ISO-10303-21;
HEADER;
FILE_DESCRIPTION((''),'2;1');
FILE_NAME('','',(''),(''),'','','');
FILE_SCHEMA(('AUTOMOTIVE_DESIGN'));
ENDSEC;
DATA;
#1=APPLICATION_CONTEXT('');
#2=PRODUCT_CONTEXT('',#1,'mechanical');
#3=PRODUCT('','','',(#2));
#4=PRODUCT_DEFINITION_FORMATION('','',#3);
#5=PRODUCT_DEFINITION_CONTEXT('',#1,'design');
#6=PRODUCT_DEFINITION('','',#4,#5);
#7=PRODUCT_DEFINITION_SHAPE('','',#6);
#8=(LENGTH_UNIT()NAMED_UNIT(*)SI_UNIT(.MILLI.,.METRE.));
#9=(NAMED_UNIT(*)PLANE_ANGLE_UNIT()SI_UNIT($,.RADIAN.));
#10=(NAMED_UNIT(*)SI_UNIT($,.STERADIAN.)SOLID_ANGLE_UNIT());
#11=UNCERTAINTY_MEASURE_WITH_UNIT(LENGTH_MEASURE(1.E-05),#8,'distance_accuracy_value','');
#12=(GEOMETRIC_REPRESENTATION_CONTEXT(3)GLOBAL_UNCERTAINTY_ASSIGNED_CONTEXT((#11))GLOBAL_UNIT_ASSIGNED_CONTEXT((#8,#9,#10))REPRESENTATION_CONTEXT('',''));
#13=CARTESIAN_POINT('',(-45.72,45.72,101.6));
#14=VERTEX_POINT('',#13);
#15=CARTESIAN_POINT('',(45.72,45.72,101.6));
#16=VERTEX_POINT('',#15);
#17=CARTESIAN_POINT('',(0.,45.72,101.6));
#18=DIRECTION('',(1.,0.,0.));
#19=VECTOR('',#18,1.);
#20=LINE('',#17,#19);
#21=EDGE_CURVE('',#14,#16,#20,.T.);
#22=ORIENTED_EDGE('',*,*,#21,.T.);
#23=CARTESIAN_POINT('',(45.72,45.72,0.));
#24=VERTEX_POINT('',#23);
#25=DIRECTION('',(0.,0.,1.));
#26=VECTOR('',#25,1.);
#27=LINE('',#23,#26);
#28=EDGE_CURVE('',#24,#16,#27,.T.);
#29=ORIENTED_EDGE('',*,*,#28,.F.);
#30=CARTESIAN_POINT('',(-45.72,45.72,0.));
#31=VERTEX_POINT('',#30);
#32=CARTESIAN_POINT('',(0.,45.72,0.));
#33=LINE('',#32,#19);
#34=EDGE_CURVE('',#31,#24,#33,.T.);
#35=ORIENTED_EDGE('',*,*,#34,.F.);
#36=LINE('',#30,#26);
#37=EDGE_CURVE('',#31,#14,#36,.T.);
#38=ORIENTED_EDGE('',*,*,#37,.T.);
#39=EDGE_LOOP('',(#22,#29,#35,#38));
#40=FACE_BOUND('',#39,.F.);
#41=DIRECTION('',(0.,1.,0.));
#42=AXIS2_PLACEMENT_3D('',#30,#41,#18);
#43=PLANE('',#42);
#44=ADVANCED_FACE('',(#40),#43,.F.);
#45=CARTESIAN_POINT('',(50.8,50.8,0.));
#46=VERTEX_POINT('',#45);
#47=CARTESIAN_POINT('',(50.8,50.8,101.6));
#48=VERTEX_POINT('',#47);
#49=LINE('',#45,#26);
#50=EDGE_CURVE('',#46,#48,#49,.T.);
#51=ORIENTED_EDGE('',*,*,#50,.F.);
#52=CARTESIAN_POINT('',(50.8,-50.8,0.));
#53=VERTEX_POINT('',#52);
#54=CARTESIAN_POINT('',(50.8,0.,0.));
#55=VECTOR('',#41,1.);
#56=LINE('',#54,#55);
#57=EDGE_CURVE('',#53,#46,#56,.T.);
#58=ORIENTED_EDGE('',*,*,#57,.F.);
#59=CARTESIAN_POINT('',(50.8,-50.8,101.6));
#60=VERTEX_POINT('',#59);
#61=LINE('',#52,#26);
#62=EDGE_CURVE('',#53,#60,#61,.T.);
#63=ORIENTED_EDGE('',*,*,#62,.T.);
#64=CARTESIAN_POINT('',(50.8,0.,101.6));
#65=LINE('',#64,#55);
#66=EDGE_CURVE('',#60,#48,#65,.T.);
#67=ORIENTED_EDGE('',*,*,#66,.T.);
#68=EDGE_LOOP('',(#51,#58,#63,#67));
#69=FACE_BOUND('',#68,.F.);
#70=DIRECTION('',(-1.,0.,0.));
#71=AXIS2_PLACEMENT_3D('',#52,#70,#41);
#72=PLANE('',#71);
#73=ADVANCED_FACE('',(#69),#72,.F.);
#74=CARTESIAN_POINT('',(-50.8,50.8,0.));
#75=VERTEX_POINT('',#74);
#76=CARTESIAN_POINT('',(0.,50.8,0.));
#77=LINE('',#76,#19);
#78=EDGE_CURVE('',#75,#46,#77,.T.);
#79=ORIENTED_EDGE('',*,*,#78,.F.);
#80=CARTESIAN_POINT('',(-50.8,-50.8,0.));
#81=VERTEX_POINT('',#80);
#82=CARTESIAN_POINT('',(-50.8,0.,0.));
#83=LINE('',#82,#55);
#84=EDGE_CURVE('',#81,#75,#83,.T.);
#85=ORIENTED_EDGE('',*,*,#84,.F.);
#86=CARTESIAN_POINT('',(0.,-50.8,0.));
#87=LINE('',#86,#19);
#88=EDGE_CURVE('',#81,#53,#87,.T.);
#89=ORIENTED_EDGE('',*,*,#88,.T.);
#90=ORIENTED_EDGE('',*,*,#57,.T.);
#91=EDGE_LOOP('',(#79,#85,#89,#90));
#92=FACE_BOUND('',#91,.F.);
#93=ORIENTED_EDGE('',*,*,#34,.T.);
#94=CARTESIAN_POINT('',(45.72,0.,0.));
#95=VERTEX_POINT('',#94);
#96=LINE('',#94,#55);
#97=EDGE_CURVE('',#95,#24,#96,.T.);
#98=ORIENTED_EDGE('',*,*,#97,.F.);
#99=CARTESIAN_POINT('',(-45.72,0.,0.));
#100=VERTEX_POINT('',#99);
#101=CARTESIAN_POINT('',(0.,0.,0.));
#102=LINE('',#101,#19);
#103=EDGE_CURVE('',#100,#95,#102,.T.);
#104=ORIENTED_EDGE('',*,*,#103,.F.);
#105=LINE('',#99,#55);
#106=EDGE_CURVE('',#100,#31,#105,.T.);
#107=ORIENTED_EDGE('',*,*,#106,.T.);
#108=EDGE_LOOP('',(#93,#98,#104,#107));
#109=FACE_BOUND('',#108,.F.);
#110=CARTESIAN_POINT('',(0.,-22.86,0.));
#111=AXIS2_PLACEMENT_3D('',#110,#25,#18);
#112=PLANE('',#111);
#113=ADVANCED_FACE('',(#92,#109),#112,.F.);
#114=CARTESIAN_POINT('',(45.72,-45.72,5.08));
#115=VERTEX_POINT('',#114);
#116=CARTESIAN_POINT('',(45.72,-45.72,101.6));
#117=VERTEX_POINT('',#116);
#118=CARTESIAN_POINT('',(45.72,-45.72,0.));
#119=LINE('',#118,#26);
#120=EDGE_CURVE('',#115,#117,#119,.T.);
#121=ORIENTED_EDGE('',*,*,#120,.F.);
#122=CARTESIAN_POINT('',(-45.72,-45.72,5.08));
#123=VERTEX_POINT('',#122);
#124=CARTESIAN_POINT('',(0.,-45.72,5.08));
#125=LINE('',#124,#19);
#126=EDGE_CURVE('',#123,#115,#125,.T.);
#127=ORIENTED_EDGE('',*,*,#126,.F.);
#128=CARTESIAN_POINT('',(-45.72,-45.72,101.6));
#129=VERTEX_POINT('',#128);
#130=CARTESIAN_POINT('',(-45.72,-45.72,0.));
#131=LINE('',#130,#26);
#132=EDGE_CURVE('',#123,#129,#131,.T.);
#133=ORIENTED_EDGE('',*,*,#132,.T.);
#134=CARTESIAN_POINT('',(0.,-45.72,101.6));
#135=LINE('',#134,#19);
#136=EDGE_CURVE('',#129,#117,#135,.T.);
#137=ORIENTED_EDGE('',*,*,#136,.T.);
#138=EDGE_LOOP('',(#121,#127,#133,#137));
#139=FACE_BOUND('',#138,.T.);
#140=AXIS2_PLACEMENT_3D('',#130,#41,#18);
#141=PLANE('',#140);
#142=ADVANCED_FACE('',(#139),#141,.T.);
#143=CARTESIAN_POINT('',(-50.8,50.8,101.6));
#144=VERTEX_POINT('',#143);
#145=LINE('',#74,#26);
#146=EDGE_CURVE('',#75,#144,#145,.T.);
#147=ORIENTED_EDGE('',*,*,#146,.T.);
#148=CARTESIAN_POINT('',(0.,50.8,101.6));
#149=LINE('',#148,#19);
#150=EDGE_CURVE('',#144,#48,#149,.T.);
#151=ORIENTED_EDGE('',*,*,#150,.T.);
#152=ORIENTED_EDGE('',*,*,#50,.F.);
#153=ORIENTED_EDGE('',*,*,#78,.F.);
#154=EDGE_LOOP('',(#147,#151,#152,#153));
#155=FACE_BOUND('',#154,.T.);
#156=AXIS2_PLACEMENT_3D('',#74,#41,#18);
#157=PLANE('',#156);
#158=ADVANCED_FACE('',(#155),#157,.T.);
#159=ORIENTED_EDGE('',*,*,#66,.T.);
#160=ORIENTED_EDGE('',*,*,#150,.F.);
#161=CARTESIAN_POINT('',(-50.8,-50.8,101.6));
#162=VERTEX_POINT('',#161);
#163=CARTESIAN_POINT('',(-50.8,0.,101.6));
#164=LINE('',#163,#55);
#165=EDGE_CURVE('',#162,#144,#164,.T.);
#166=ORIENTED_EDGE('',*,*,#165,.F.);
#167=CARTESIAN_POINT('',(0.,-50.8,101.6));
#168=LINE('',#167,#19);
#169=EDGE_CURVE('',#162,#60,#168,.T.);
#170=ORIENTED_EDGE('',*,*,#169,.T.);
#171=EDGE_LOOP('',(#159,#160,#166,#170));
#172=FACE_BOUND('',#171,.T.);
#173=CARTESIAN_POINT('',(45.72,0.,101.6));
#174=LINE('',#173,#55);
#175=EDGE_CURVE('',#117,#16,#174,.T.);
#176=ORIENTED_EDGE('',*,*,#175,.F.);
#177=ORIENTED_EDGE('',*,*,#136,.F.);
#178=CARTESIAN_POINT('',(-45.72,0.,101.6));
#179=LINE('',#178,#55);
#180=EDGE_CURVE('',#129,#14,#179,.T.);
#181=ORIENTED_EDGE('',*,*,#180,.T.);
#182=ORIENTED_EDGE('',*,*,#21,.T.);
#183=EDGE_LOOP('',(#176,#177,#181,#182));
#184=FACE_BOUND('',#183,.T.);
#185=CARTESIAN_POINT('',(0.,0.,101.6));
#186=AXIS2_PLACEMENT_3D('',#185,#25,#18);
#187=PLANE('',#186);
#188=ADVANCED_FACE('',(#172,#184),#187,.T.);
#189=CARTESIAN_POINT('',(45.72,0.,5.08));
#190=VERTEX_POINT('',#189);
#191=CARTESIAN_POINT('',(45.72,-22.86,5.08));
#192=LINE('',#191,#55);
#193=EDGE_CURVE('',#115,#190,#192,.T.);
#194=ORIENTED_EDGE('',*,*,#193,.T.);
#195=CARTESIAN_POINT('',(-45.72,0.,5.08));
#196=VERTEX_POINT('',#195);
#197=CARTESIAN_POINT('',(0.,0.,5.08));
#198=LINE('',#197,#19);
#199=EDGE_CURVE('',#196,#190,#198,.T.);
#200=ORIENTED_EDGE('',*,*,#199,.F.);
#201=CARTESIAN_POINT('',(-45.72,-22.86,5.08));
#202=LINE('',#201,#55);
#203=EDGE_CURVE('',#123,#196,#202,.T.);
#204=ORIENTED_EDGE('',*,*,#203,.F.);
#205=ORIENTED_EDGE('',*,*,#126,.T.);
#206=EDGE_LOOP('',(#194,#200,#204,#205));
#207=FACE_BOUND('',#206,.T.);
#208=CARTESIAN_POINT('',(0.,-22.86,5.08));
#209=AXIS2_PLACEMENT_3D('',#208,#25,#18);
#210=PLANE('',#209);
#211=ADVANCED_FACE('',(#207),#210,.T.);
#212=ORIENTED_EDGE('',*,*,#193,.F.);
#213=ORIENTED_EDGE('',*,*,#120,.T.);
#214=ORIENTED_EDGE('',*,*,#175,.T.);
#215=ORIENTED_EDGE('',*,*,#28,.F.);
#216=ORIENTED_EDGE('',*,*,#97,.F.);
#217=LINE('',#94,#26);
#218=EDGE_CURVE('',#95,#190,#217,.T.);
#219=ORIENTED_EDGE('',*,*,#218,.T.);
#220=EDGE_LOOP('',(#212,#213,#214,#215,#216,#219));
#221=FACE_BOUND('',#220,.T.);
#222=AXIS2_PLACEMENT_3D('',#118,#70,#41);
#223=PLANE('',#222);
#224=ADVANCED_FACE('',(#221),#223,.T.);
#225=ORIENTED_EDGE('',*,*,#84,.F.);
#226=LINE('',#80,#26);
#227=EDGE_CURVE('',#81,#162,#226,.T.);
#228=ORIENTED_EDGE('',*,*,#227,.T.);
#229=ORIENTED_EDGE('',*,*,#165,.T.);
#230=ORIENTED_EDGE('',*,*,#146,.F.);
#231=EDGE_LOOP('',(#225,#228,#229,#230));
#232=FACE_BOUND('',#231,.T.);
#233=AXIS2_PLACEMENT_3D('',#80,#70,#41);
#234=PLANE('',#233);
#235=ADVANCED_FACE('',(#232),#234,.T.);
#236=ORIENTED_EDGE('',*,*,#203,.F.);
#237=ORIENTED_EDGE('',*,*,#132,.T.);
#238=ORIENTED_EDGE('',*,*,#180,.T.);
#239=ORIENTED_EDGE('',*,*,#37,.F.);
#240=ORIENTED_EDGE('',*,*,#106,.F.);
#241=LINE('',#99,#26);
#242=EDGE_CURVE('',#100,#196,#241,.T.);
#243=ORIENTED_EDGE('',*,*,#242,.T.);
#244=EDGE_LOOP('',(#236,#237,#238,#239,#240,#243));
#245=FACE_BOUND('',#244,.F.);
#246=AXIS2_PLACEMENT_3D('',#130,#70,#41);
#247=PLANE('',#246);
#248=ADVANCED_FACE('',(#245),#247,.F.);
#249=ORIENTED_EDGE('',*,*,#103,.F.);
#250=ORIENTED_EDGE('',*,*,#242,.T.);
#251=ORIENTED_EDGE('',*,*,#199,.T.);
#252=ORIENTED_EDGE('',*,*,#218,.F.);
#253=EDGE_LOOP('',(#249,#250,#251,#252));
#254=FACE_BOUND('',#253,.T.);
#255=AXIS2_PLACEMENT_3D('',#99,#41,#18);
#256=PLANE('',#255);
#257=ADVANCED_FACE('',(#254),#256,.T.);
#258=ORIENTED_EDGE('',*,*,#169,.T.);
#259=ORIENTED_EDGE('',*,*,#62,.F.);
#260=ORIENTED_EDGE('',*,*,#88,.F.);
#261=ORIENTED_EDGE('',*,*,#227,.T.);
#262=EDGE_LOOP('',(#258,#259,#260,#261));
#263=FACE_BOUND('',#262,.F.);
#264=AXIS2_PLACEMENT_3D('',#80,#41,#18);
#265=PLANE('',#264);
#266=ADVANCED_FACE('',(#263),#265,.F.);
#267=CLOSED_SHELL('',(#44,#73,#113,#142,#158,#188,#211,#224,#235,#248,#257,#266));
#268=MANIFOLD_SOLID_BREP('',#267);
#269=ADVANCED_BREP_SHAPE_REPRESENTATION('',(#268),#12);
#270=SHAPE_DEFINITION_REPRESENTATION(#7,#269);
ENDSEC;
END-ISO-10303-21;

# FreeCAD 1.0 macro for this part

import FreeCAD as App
import Part
import Sketcher

V = App.Vector
Q = App.Units.Quantity

doc = App.newDocument("Part")
body = doc.addObject("PartDesign::Body", "Body")

# Sketch on XY plane
sketch1 = doc.addObject("Sketcher::SketchObject", "Sketch")
body.addObject(sketch1)
sketch1.AttachmentSupport = (doc.XY_Plane, [""])
sketch1.MapMode = "FlatFace"
sketch1.addGeometry([
    Part.LineSegment(V(-51, 51, 0), V(-51, -51, 0)),  # 0
    Part.LineSegment(V(-51, -51, 0), V(51, -51, 0)),  # 1
    Part.LineSegment(V(51, -51, 0), V(51, 51, 0)),  # 2
    Part.LineSegment(V(51, 51, 0), V(-51, 51, 0)),  # 3
    Part.LineSegment(V(46, -46, 0), V(-46, -46, 0)),  # 4
    Part.LineSegment(V(-46, -46, 0), V(-46, 46, 0)),  # 5
    Part.LineSegment(V(-46, 46, 0), V(46, 46, 0)),  # 6
    Part.LineSegment(V(46, 46, 0), V(46, -46, 0)),  # 7
], False)
sketch1.addConstraint([
    Sketcher.Constraint("Coincident", 0, 2, 1, 1),
    Sketcher.Constraint("Coincident", 1, 2, 2, 1),
    Sketcher.Constraint("Coincident", 2, 2, 3, 1),
    Sketcher.Constraint("Coincident", 3, 2, 0, 1),
    Sketcher.Constraint("Coincident", 4, 2, 5, 1),
    Sketcher.Constraint("Coincident", 5, 2, 6, 1),
    Sketcher.Constraint("Coincident", 6, 2, 7, 1),
    Sketcher.Constraint("Coincident", 7, 2, 4, 1),
    Sketcher.Constraint("Vertical", 0),
    Sketcher.Constraint("Horizontal", 1),
    Sketcher.Constraint("Vertical", 2),
    Sketcher.Constraint("Horizontal", 3),
    Sketcher.Constraint("Horizontal", 4),
    Sketcher.Constraint("Vertical", 5),
    Sketcher.Constraint("Horizontal", 6),
    Sketcher.Constraint("Vertical", 7),
    Sketcher.Constraint("Symmetric", 0, 2, 2, 2, -1, 1),
    Sketcher.Constraint("Symmetric", 4, 2, 6, 2, -1, 1),
    Sketcher.Constraint("Equal", 3, 0),
    Sketcher.Constraint("Equal", 6, 5),
    Sketcher.Constraint("DistanceX", 1, 1, 1, 2, Q("4 in")),
    Sketcher.Constraint("DistanceX", 4, 2, 4, 1, Q("3.6 in")),
])
pad1 = doc.addObject("PartDesign::Pad", "Pad")
body.addObject(pad1)
pad1.Profile = sketch1
pad1.Length = Q("4 in")

# Sketch on XY plane
sketch2 = doc.addObject("Sketcher::SketchObject", "Sketch001")
body.addObject(sketch2)
sketch2.AttachmentSupport = (doc.XY_Plane, [""])
sketch2.MapMode = "FlatFace"
sketch2.addGeometry([
    Part.LineSegment(V(-46, 0, 0), V(-46, -46, 0)),
    Part.LineSegment(V(-46, -46, 0), V(46, -46, 0)),
    Part.LineSegment(V(46, -46, 0), V(46, 0, 0)),
    Part.LineSegment(V(46, 0, 0), V(-46, 0, 0)),
], False)
sketch2.addConstraint([
    Sketcher.Constraint("Coincident", 0, 2, 1, 1),
    Sketcher.Constraint("Coincident", 1, 2, 2, 1),
    Sketcher.Constraint("Coincident", 2, 2, 3, 1),
    Sketcher.Constraint("Coincident", 3, 2, 0, 1),
    Sketcher.Constraint("Vertical", 0),
    Sketcher.Constraint("Horizontal", 1),
    Sketcher.Constraint("Vertical", 2),
    Sketcher.Constraint("Horizontal", 3),
    Sketcher.Constraint("Symmetric", 2, 2, 3, 2, -1, 1),
    Sketcher.Constraint("DistanceX", 1, 1, 1, 2, Q("3.6 in")),
    Sketcher.Constraint("DistanceY", 0, 2, 0, 1, Q("1.8 in")),
])
pad2 = doc.addObject("PartDesign::Pad", "Pad001")
body.addObject(pad2)
pad2.Profile = sketch2
pad2.Length = Q("0.2 in")

doc.recompute()
